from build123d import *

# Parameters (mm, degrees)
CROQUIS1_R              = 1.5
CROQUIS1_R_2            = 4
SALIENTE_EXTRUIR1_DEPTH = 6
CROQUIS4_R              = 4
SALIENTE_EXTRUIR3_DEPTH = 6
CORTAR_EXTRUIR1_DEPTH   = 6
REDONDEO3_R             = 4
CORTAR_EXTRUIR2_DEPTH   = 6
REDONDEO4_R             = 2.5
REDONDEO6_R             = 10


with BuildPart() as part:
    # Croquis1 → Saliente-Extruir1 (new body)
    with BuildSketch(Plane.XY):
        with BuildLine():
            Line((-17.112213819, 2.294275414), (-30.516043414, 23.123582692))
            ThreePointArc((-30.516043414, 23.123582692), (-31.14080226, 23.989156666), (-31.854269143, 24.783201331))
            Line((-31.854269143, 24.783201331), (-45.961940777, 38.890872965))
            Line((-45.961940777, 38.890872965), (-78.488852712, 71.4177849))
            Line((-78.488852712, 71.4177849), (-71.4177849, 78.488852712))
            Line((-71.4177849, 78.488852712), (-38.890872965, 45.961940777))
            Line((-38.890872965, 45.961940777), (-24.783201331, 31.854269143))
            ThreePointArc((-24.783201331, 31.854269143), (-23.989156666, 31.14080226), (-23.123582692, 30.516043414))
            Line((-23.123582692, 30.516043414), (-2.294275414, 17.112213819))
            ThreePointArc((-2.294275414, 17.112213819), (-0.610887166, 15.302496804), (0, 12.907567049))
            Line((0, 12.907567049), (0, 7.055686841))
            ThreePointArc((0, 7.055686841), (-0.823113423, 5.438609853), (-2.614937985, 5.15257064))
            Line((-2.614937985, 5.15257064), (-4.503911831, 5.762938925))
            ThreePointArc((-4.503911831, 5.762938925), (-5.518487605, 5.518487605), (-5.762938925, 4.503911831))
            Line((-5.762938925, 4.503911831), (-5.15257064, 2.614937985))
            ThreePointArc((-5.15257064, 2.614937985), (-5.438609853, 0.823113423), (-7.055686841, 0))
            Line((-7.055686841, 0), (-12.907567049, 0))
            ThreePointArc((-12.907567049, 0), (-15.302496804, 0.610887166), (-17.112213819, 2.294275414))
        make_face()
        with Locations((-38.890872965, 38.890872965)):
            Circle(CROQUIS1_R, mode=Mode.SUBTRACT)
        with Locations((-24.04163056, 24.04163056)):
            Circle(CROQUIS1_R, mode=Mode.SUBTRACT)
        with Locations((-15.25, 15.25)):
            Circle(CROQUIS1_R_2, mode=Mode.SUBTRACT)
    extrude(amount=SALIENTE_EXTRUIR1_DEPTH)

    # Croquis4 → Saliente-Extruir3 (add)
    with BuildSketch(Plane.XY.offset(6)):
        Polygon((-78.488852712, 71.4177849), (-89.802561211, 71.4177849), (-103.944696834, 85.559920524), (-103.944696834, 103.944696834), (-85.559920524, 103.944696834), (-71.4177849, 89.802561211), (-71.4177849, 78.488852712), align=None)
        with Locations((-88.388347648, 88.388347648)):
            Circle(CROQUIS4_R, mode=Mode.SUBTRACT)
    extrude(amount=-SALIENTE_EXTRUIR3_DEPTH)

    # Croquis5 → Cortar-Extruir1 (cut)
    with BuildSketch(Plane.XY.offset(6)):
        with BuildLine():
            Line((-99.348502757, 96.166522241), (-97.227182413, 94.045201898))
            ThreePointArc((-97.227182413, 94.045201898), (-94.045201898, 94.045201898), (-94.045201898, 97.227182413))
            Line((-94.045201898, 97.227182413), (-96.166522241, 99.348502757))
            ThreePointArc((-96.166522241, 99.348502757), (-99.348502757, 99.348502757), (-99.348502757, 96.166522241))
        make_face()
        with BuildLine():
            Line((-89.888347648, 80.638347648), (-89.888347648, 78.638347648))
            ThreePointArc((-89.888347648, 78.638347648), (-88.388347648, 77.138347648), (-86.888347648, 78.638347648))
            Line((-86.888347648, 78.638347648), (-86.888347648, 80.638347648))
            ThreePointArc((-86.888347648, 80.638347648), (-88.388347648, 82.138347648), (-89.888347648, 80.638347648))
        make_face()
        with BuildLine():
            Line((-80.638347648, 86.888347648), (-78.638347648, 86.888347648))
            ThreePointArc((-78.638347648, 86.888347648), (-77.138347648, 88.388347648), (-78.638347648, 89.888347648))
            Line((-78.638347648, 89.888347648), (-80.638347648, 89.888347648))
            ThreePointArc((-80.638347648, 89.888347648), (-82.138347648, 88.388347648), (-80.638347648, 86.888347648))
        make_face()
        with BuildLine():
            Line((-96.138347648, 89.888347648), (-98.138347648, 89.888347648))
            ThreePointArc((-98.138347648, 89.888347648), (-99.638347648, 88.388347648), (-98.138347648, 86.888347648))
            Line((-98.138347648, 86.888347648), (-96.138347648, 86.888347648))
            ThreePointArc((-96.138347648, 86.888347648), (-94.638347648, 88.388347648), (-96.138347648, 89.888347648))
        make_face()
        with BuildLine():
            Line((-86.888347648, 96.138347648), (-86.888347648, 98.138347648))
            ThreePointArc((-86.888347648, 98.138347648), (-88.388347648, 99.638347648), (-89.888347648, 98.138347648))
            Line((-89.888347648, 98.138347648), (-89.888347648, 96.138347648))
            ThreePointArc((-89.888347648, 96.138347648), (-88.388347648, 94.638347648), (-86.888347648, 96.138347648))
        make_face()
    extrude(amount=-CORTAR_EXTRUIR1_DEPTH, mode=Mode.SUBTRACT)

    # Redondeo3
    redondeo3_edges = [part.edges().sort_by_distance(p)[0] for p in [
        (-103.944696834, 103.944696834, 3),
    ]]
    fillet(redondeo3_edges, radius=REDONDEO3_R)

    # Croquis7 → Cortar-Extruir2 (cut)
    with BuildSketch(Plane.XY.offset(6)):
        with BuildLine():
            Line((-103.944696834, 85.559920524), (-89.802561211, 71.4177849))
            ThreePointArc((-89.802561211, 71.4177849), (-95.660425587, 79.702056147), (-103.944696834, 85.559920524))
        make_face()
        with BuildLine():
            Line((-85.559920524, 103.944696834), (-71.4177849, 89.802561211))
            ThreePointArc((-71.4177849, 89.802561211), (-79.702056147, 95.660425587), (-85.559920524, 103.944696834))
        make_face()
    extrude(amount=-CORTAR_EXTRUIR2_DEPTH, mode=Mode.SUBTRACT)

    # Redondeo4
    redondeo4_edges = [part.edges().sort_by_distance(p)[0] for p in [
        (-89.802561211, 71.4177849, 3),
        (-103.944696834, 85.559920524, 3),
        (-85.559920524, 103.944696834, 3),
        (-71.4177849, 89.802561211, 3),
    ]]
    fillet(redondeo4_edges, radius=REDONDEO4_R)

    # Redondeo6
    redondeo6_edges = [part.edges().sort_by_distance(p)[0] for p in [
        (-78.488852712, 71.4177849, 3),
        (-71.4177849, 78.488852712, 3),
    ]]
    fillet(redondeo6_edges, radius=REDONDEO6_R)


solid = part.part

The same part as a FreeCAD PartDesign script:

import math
import FreeCAD as App
import Part
import Sketcher
from FreeCAD import Vector
Q = App.Units.Quantity


def edges_at(feature, points):
    """Names of the edges that pass closest to the given points."""
    edges = feature.Shape.Edges
    near = lambda p: min(range(len(edges)), key=lambda i: edges[i].distToShape(Part.Vertex(*p))[0])
    return sorted({f"Edge{near(p) + 1}" for p in points})


def add_polygon(sketch, points):
    """Adds a closed chain of lines whose ends are joined by coincident constraints."""
    first, n = sketch.GeometryCount, len(points)
    for a, b in zip(points, points[1:] + points[:1]):
        sketch.addGeometry(Part.LineSegment(App.Vector(*a, 0), App.Vector(*b, 0)), False)
    for i in range(n):
        sketch.addConstraint(Sketcher.Constraint("Coincident", first + i, 2, first + (i + 1) % n, 1))

doc = App.newDocument("Part")
body = doc.addObject("PartDesign::Body", "Body")

# Sketch on XY plane
sketch1 = body.newObject("Sketcher::SketchObject", "Sketch")
sketch1.AttachmentSupport = (doc.getObject("XY_Plane"), [""])
sketch1.MapMode = "FlatFace"
sketch1.addGeometry([
    Part.LineSegment(Vector(-30.516043, 23.123583, 0), Vector(-17.112214, 2.294275, 0)),  # 0
    Part.ArcOfCircle(Part.Circle(Vector(-12.907567, 5, 0), Vector(0, 0, 1), 5), math.radians(-147.238388), math.radians(-90)),  # 1
    Part.LineSegment(Vector(-12.907567, 0, 0), Vector(-7.055687, 0, 0)),  # 2
    Part.ArcOfCircle(Part.Circle(Vector(-7.055687, 2, 0), Vector(0, 0, 1), 2), math.radians(-90), math.radians(17.906766)),  # 3
    Part.LineSegment(Vector(-5.152571, 2.614938, 0), Vector(-5.762939, 4.503912, 0)),  # 4
    Part.ArcOfCircle(Part.Circle(Vector(-4.811381, 4.811381, 0), Vector(0, 0, 1), 1), math.radians(72.093234), math.radians(197.906766)),  # 5
    Part.LineSegment(Vector(-4.503912, 5.762939, 0), Vector(-2.614938, 5.152571, 0)),  # 6
    Part.ArcOfCircle(Part.Circle(Vector(-2, 7.055687, 0), Vector(0, 0, 1), 2), math.radians(-107.906766), math.radians(0)),  # 7
    Part.LineSegment(Vector(0, 7.055687, 0), Vector(0, 12.907567, 0)),  # 8
    Part.ArcOfCircle(Part.Circle(Vector(-5, 12.907567, 0), Vector(0, 0, 1), 5), math.radians(0), math.radians(57.238388)),  # 9
    Part.LineSegment(Vector(-2.294275, 17.112214, 0), Vector(-23.123583, 30.516043, 0)),  # 10
    Part.ArcOfCircle(Part.Circle(Vector(-17.712134, 38.925337, 0), Vector(0, 0, 1), 10), math.radians(-135), math.radians(-122.761612)),  # 11
    Part.LineSegment(Vector(-24.783201, 31.854269, 0), Vector(-71.417785, 78.488853, 0)),  # 12
    Part.LineSegment(Vector(-71.417785, 78.488853, 0), Vector(-78.488853, 71.417785, 0)),  # 13
    Part.LineSegment(Vector(-78.488853, 71.417785, 0), Vector(-31.854269, 24.783201, 0)),  # 14
    Part.ArcOfCircle(Part.Circle(Vector(-38.925337, 17.712134, 0), Vector(0, 0, 1), 10), math.radians(32.761612), math.radians(45)),  # 15
    Part.Circle(Vector(-15.25, 15.25, 0), Vector(0, 0, 1), 4),  # 16
    Part.Circle(Vector(-24.041631, 24.041631, 0), Vector(0, 0, 1), 1.5),  # 17
    Part.Circle(Vector(-38.890873, 38.890873, 0), Vector(0, 0, 1), 1.5),  # 18
], False)
sketch1.addConstraint([
    Sketcher.Constraint("Tangent", 0, 2, 1, 1),
    Sketcher.Constraint("Tangent", 1, 2, 2, 1),
    Sketcher.Constraint("Tangent", 2, 2, 3, 1),
    Sketcher.Constraint("Tangent", 3, 2, 4, 1),
    Sketcher.Constraint("Tangent", 4, 2, 5, 2),
    Sketcher.Constraint("Tangent", 5, 1, 6, 1),
    Sketcher.Constraint("Tangent", 6, 2, 7, 1),
    Sketcher.Constraint("Tangent", 7, 2, 8, 1),
    Sketcher.Constraint("Tangent", 8, 2, 9, 1),
    Sketcher.Constraint("Tangent", 9, 2, 10, 1),
    Sketcher.Constraint("Tangent", 10, 2, 11, 2),
    Sketcher.Constraint("Tangent", 11, 1, 12, 1),
    Sketcher.Constraint("Coincident", 12, 2, 13, 1),
    Sketcher.Constraint("Coincident", 13, 2, 14, 1),
    Sketcher.Constraint("Tangent", 14, 2, 15, 2),
    Sketcher.Constraint("Tangent", 15, 1, 0, 1),
    Sketcher.Constraint("Horizontal", 2),
    Sketcher.Constraint("Vertical", 8),
    Sketcher.Constraint("Equal", 3, 7),
    Sketcher.Constraint("Equal", 1, 9),
    Sketcher.Constraint("Equal", 11, 15),
    Sketcher.Constraint("Equal", 17, 18),
    Sketcher.Constraint("PointOnObject", 1, 2, -1),
    Sketcher.Constraint("PointOnObject", 7, 2, -2),
    Sketcher.Constraint("Perpendicular", 12, 13),
    Sketcher.Constraint("Perpendicular", 13, 14),
    Sketcher.Constraint("Equal", 2, 8),
    Sketcher.Constraint("Equal", 4, 6),
    Sketcher.Constraint("Equal", 0, 10),
    Sketcher.Constraint("Equal", 12, 14),
    Sketcher.Constraint("Diameter", 16, Q("8 mm")),
    Sketcher.Constraint("Diameter", 17, Q("3 mm")),
    Sketcher.Constraint("Radius", 1, Q("5 mm")),
    Sketcher.Constraint("Radius", 3, Q("2 mm")),
    Sketcher.Constraint("Radius", 5, Q("1 mm")),
    Sketcher.Constraint("Radius", 11, Q("10 mm")),
    Sketcher.Constraint("Angle", 12, Q("135 deg")),
    Sketcher.Constraint("Distance", 13, Q("10 mm")),
    Sketcher.Constraint("DistanceX", 16, 3, -1, 1, Q("15.25 mm")),
    Sketcher.Constraint("DistanceY", -1, 1, 16, 3, Q("15.25 mm")),
    Sketcher.Constraint("DistanceY", 3, 2, 5, 1, Q("3.148001 mm")),
    Sketcher.Constraint("DistanceX", 4, 2, 6, 2, Q("3.148001 mm")),
    Sketcher.Constraint("DistanceX", 2, 1, 2, 2, Q("5.85188 mm")),
    Sketcher.Constraint("DistanceX", 11, 1, -1, 1, Q("24.783201 mm")),
    Sketcher.Constraint("Distance", 0, Q("24.76939 mm")),
    Sketcher.Constraint("Distance", 12, Q("65.951261 mm")),
    Sketcher.Constraint("DistanceX", 17, 3, -1, 1, Q("24.041631 mm")),
    Sketcher.Constraint("DistanceY", -1, 1, 17, 3, Q("24.041631 mm")),
    Sketcher.Constraint("DistanceX", 18, 3, 11, 3, Q("21.178739 mm")),
    Sketcher.Constraint("DistanceY", 15, 3, 18, 3, Q("21.178739 mm")),
])
pad1 = body.newObject("PartDesign::Pad", "Pad")
pad1.Profile = sketch1
pad1.Length = 6

# Sketch on XY plane
sketch2 = body.newObject("Sketcher::SketchObject", "Sketch001")
sketch2.AttachmentSupport = (doc.getObject("XY_Plane"), [""])
sketch2.MapMode = "FlatFace"
sketch2.AttachmentOffset = App.Placement(Vector(0, 0, 6), App.Rotation())
add_polygon(sketch2, [(-89.802561, 71.417785), (-78.488853, 71.417785), (-71.417785, 78.488853), (-71.417785, 89.802561), (-85.559921, 103.944697), (-103.944697, 103.944697), (-103.944697, 85.559921)])  # lines 0-6
sketch2.addGeometry(Part.Circle(Vector(-88.388348, 88.388348, 0), Vector(0, 0, 1), 4), False)  # 7
sketch2.addConstraint([
    Sketcher.Constraint("Horizontal", 0),
    Sketcher.Constraint("Vertical", 2),
    Sketcher.Constraint("Horizontal", 4),
    Sketcher.Constraint("Vertical", 5),
    Sketcher.Constraint("Perpendicular", 1, 3),
    Sketcher.Constraint("Parallel", 3, 6),
    Sketcher.Constraint("Equal", 0, 2),
    Sketcher.Constraint("Equal", 4, 5),
    Sketcher.Constraint("Equal", 3, 6),
    Sketcher.Constraint("Diameter", 7, Q("8 mm")),
    Sketcher.Constraint("Distance", 1, Q("10 mm")),
    Sketcher.Constraint("Distance", 3, Q("20 mm")),
    Sketcher.Constraint("DistanceX", 0, 1, 0, 2, Q("11.313708 mm")),
    Sketcher.Constraint("DistanceY", -1, 1, 2, 2, Q("89.802561 mm")),
    Sketcher.Constraint("DistanceX", 3, 2, -1, 1, Q("85.559921 mm")),
    Sketcher.Constraint("DistanceY", 7, 3, 3, 2, Q("15.556349 mm")),
    Sketcher.Constraint("DistanceX", 4, 2, 7, 3, Q("15.556349 mm")),
])
pad2 = body.newObject("PartDesign::Pad", "Pad001")
pad2.Profile = sketch2
pad2.Length = 6
pad2.Reversed = True

# Sketch on XY plane
sketch3 = body.newObject("Sketcher::SketchObject", "Sketch002")
sketch3.AttachmentSupport = (doc.getObject("XY_Plane"), [""])
sketch3.MapMode = "FlatFace"
sketch3.AttachmentOffset = App.Placement(Vector(0, 0, 6), App.Rotation())
sketch3.addGeometry([
    Part.LineSegment(Vector(-99.348503, 96.166522, 0), Vector(-97.227182, 94.045202, 0)),  # 0
    Part.ArcOfCircle(Part.Circle(Vector(-95.636192, 95.636192, 0), Vector(0, 0, 1), 2.25), math.radians(-135), math.radians(45)),  # 1
    Part.LineSegment(Vector(-94.045202, 97.227182, 0), Vector(-96.166522, 99.348503, 0)),  # 2
    Part.ArcOfCircle(Part.Circle(Vector(-97.757512, 97.757512, 0), Vector(0, 0, 1), 2.25), math.radians(45), math.radians(225)),  # 3
    Part.LineSegment(Vector(-89.888348, 80.638348, 0), Vector(-89.888348, 78.638348, 0)),  # 4
    Part.ArcOfCircle(Part.Circle(Vector(-88.388348, 78.638348, 0), Vector(0, 0, 1), 1.5), math.radians(180), math.radians(360)),  # 5
    Part.LineSegment(Vector(-86.888348, 78.638348, 0), Vector(-86.888348, 80.638348, 0)),  # 6
    Part.ArcOfCircle(Part.Circle(Vector(-88.388348, 80.638348, 0), Vector(0, 0, 1), 1.5), math.radians(0), math.radians(180)),  # 7
    Part.LineSegment(Vector(-80.638348, 86.888348, 0), Vector(-78.638348, 86.888348, 0)),  # 8
    Part.ArcOfCircle(Part.Circle(Vector(-78.638348, 88.388348, 0), Vector(0, 0, 1), 1.5), math.radians(-90), math.radians(90)),  # 9
    Part.LineSegment(Vector(-78.638348, 89.888348, 0), Vector(-80.638348, 89.888348, 0)),  # 10
    Part.ArcOfCircle(Part.Circle(Vector(-80.638348, 88.388348, 0), Vector(0, 0, 1), 1.5), math.radians(90), math.radians(270)),  # 11
    Part.LineSegment(Vector(-96.138348, 89.888348, 0), Vector(-98.138348, 89.888348, 0)),  # 12
    Part.ArcOfCircle(Part.Circle(Vector(-98.138348, 88.388348, 0), Vector(0, 0, 1), 1.5), math.radians(90), math.radians(270)),  # 13
    Part.LineSegment(Vector(-98.138348, 86.888348, 0), Vector(-96.138348, 86.888348, 0)),  # 14
    Part.ArcOfCircle(Part.Circle(Vector(-96.138348, 88.388348, 0), Vector(0, 0, 1), 1.5), math.radians(-90), math.radians(90)),  # 15
    Part.LineSegment(Vector(-86.888348, 96.138348, 0), Vector(-86.888348, 98.138348, 0)),  # 16
    Part.ArcOfCircle(Part.Circle(Vector(-88.388348, 98.138348, 0), Vector(0, 0, 1), 1.5), math.radians(0), math.radians(180)),  # 17
    Part.LineSegment(Vector(-89.888348, 98.138348, 0), Vector(-89.888348, 96.138348, 0)),  # 18
    Part.ArcOfCircle(Part.Circle(Vector(-88.388348, 96.138348, 0), Vector(0, 0, 1), 1.5), math.radians(180), math.radians(360)),  # 19
], False)
sketch3.addConstraint([
    Sketcher.Constraint("Tangent", 0, 2, 1, 1),
    Sketcher.Constraint("Tangent", 1, 2, 2, 1),
    Sketcher.Constraint("Tangent", 2, 2, 3, 1),
    Sketcher.Constraint("Tangent", 3, 2, 0, 1),
    Sketcher.Constraint("Tangent", 4, 2, 5, 1),
    Sketcher.Constraint("Tangent", 5, 2, 6, 1),
    Sketcher.Constraint("Tangent", 6, 2, 7, 1),
    Sketcher.Constraint("Tangent", 7, 2, 4, 1),
    Sketcher.Constraint("Tangent", 8, 2, 9, 1),
    Sketcher.Constraint("Tangent", 9, 2, 10, 1),
    Sketcher.Constraint("Tangent", 10, 2, 11, 1),
    Sketcher.Constraint("Tangent", 11, 2, 8, 1),
    Sketcher.Constraint("Tangent", 12, 2, 13, 1),
    Sketcher.Constraint("Tangent", 13, 2, 14, 1),
    Sketcher.Constraint("Tangent", 14, 2, 15, 1),
    Sketcher.Constraint("Tangent", 15, 2, 12, 1),
    Sketcher.Constraint("Tangent", 16, 2, 17, 1),
    Sketcher.Constraint("Tangent", 17, 2, 18, 1),
    Sketcher.Constraint("Tangent", 18, 2, 19, 1),
    Sketcher.Constraint("Tangent", 19, 2, 16, 1),
    Sketcher.Constraint("Vertical", 4),
    Sketcher.Constraint("Vertical", 6),
    Sketcher.Constraint("Horizontal", 8),
    Sketcher.Constraint("Horizontal", 10),
    Sketcher.Constraint("Horizontal", 12),
    Sketcher.Constraint("Horizontal", 14),
    Sketcher.Constraint("Vertical", 16),
    Sketcher.Constraint("Vertical", 18),
    Sketcher.Constraint("Equal", 1, 3),
    Sketcher.Constraint("Equal", 7, 9),
    Sketcher.Constraint("Equal", 11, 13),
    Sketcher.Constraint("Equal", 15, 17),
    Sketcher.Constraint("Horizontal", 11, 3, 13, 3),
    Sketcher.Constraint("Vertical", 7, 3, 17, 3),
    Sketcher.Constraint("Equal", 10, 12),
    Sketcher.Constraint("Equal", 14, 4),
    Sketcher.Constraint("Equal", 6, 16),
    Sketcher.Constraint("Radius", 5, Q("1.5 mm")),
    Sketcher.Constraint("DistanceX", 8, 1, 8, 2, Q("2 mm")),
    Sketcher.Constraint("Angle", 0, Q("-45 deg")),
    Sketcher.Constraint("Radius", 1, Q("2.25 mm")),
    Sketcher.Constraint("Distance", 0, Q("3 mm")),
    Sketcher.Constraint("DistanceX", 13, 3, 11, 3, Q("17.5 mm")),
    Sketcher.Constraint("DistanceX", 7, 3, 9, 3, Q("9.75 mm")),
    Sketcher.Constraint("DistanceY", 7, 3, 9, 3, Q("7.75 mm")),
    Sketcher.Constraint("DistanceY", 11, 3, 17, 3, Q("9.75 mm")),
    Sketcher.Constraint("DistanceY", -1, 1, 0, 2, Q("94.045202 mm")),
    Sketcher.Constraint("DistanceX", 1, 2, -1, 1, Q("94.045202 mm")),
    Sketcher.Constraint("DistanceX", 5, 3, -1, 1, Q("88.388348 mm")),
    Sketcher.Constraint("DistanceY", -1, 1, 5, 3, Q("78.638348 mm")),
])
pocket1 = body.newObject("PartDesign::Pocket", "Pocket")
pocket1.Profile = sketch3
pocket1.Length = 6
doc.recompute()

fillet = body.newObject("PartDesign::Fillet", "Fillet")
fillet.Base = (pocket1, edges_at(pocket1, [(-103.945, 103.945, 3)]))
fillet.Radius = 4

# Sketch on XY plane
sketch4 = body.newObject("Sketcher::SketchObject", "Sketch003")
sketch4.AttachmentSupport = (doc.getObject("XY_Plane"), [""])
sketch4.MapMode = "FlatFace"
sketch4.AttachmentOffset = App.Placement(Vector(0, 0, 6), App.Rotation())
sketch4.addGeometry([
    Part.LineSegment(Vector(-103.944697, 85.559921, 0), Vector(-89.802561, 71.417785, 0)),
    Part.ArcOfCircle(Part.Circle(Vector(-116.873629, 58.488853, 0), Vector(0, 0, 1), 30), math.radians(25.528779), math.radians(64.471221)),
    Part.LineSegment(Vector(-71.417785, 89.802561, 0), Vector(-85.559921, 103.944697, 0)),
    Part.ArcOfCircle(Part.Circle(Vector(-58.488853, 116.873629, 0), Vector(0, 0, 1), 30), math.radians(-154.471221), math.radians(-115.528779)),
], False)
sketch4.addConstraint([
    Sketcher.Constraint("Coincident", 0, 1, 1, 2),
    Sketcher.Constraint("Coincident", 1, 1, 0, 2),
    Sketcher.Constraint("Coincident", 2, 1, 3, 2),
    Sketcher.Constraint("Coincident", 3, 1, 2, 2),
    Sketcher.Constraint("Equal", 1, 3),
    Sketcher.Constraint("Parallel", 0, 2),
    Sketcher.Constraint("Equal", 0, 2),
    Sketcher.Constraint("Radius", 1, Q("30 mm")),
    Sketcher.Constraint("Angle", 0, Q("-45 deg")),
    Sketcher.Constraint("Distance", 0, Q("20 mm")),
    Sketcher.Constraint("DistanceX", 1, 3, -1, 1, Q("116.873629 mm")),
    Sketcher.Constraint("DistanceY", -1, 1, 3, 3, Q("116.873629 mm")),
    Sketcher.Constraint("DistanceY", -1, 1, 0, 1, Q("85.559921 mm")),
    Sketcher.Constraint("DistanceX", 3, 1, -1, 1, Q("85.559921 mm")),
])
pocket2 = body.newObject("PartDesign::Pocket", "Pocket001")
pocket2.Profile = sketch4
pocket2.Length = 6
doc.recompute()

fillet2 = body.newObject("PartDesign::Fillet", "Fillet001")
fillet2.Base = (pocket2, edges_at(pocket2, [
    (-89.803, 71.418, 3),
    (-103.945, 85.56, 3),
    (-85.56, 103.945, 3),
    (-71.418, 89.803, 3),
]))
fillet2.Radius = 2.5
doc.recompute()

fillet3 = body.newObject("PartDesign::Fillet", "Fillet002")
fillet3.Base = (fillet2, edges_at(fillet2, [(-78.489, 71.418, 3), (-71.418, 78.489, 3)]))
fillet3.Radius = 10

doc.recompute()
